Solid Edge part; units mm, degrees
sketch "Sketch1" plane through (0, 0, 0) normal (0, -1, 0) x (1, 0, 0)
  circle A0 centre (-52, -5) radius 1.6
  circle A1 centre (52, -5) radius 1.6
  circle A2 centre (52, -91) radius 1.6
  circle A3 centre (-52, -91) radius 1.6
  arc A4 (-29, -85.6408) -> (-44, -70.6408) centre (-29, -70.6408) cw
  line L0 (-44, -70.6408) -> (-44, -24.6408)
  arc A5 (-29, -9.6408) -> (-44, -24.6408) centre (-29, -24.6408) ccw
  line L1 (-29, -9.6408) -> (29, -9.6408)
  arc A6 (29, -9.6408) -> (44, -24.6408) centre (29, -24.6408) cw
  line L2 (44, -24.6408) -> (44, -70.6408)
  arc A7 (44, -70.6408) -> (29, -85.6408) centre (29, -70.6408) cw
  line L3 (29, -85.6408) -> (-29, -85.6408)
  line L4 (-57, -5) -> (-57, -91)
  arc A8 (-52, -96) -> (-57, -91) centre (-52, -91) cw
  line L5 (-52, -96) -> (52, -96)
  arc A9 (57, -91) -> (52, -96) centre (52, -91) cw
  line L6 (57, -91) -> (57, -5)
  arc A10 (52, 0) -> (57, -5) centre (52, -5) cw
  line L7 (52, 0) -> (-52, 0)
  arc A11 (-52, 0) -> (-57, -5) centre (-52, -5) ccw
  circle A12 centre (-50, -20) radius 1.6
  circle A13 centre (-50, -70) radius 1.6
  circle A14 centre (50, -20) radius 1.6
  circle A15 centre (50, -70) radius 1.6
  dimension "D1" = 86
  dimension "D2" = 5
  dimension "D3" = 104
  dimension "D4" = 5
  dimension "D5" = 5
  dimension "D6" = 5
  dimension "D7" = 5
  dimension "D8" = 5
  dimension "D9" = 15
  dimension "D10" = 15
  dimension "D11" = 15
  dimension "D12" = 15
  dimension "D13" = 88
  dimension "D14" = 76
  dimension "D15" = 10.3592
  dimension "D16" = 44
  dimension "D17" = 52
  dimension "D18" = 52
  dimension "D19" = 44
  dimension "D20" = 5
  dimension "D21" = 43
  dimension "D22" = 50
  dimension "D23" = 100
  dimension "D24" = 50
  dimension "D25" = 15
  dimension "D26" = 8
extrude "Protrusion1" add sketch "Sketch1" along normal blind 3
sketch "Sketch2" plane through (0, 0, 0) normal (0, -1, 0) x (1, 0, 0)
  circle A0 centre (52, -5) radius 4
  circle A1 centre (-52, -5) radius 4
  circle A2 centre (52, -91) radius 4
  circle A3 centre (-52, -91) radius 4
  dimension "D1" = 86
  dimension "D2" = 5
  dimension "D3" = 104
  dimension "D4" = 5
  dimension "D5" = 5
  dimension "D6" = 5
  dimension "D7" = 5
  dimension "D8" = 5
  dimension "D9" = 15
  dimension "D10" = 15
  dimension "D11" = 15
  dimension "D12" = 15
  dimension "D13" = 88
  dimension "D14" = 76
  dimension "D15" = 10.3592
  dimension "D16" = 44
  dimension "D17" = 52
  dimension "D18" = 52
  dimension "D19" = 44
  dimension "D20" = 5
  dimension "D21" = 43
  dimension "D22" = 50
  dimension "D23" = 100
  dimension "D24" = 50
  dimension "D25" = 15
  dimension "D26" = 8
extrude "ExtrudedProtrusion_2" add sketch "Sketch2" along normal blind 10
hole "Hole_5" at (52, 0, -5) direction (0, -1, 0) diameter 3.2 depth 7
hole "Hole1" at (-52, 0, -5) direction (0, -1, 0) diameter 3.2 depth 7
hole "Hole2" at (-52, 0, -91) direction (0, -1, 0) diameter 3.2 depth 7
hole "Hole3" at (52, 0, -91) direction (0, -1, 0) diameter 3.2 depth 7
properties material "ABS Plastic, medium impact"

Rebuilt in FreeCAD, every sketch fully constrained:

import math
import FreeCAD as App
import Part
import Sketcher

doc = App.newDocument("Part")
params = doc.addObject("Spreadsheet::Sheet", "Params")
for row, (alias, value) in enumerate([
    ("sketch1_radius", "5 mm"),
    ("sketch1_radius2", "15 mm"),
    ("sketch1_diameter", "3.2 mm"),
    ("sketch1_width", "104 mm"),
    ("sketch1_width2", "58 mm"),
    ("pad1_length", "3 mm"),
    ("sketch2_diameter", "8 mm"),
    ("pad2_length", "10 mm"),
    ("sketch3_diameter", "3.2 mm"),
    ("hole_diameter", "3.2 mm"),
    ("hole_depth", "7 mm"),
    ("sketch4_diameter", "3.2 mm"),
    ("hole2_diameter", "3.2 mm"),
    ("hole2_depth", "7 mm"),
    ("sketch5_diameter", "3.2 mm"),
    ("hole3_diameter", "3.2 mm"),
    ("hole3_depth", "7 mm"),
    ("sketch6_diameter", "3.2 mm"),
    ("hole4_diameter", "3.2 mm"),
    ("hole4_depth", "7 mm"),
], start=1):
    params.set(f"A{row}", alias)
    params.set(f"B{row}", "=" + value)
    params.setAlias(f"B{row}", alias)

body = doc.addObject("PartDesign::Body", "Body")

# Sketch on XZ plane
sketch1 = doc.addObject("Sketcher::SketchObject", "Sketch")
body.addObject(sketch1)
sketch1.AttachmentSupport = (doc.XZ_Plane, [""])
sketch1.MapMode = "FlatFace"
sketch1.addGeometry([
    Part.ArcOfCircle(Part.Circle(App.Vector(-52, -5, 0), App.Vector(0, 0, 1), 5), math.radians(90), math.radians(180)),  # 0
    Part.LineSegment(App.Vector(-57, -5, 0), App.Vector(-57, -91, 0)),  # 1
    Part.ArcOfCircle(Part.Circle(App.Vector(-52, -91, 0), App.Vector(0, 0, 1), 5), math.radians(180), math.radians(270)),  # 2
    Part.LineSegment(App.Vector(-52, -96, 0), App.Vector(52, -96, 0)),  # 3
    Part.ArcOfCircle(Part.Circle(App.Vector(52, -91, 0), App.Vector(0, 0, 1), 5), math.radians(-90), math.radians(0)),  # 4
    Part.LineSegment(App.Vector(57, -91, 0), App.Vector(57, -5, 0)),  # 5
    Part.ArcOfCircle(Part.Circle(App.Vector(52, -5, 0), App.Vector(0, 0, 1), 5), math.radians(0), math.radians(90)),  # 6
    Part.LineSegment(App.Vector(52, 0, 0), App.Vector(-52, 0, 0)),  # 7
    Part.Circle(App.Vector(-52, -91, 0), App.Vector(0, 0, 1), 1.6),  # 8
    Part.Circle(App.Vector(-50, -70, 0), App.Vector(0, 0, 1), 1.6),  # 9
    Part.Circle(App.Vector(52, -91, 0), App.Vector(0, 0, 1), 1.6),  # 10
    Part.Circle(App.Vector(50, -70, 0), App.Vector(0, 0, 1), 1.6),  # 11
    Part.Circle(App.Vector(-50, -20, 0), App.Vector(0, 0, 1), 1.6),  # 12
    Part.Circle(App.Vector(-52, -5, 0), App.Vector(0, 0, 1), 1.6),  # 13
    Part.LineSegment(App.Vector(29, -85.6, 0), App.Vector(-29, -85.6, 0)),  # 14
    Part.ArcOfCircle(Part.Circle(App.Vector(-29, -70.6, 0), App.Vector(0, 0, 1), 15), math.radians(180), math.radians(270)),  # 15
    Part.LineSegment(App.Vector(-44, -70.6, 0), App.Vector(-44, -24.6, 0)),  # 16
    Part.ArcOfCircle(Part.Circle(App.Vector(-29, -24.6, 0), App.Vector(0, 0, 1), 15), math.radians(90), math.radians(180)),  # 17
    Part.LineSegment(App.Vector(-29, -9.6, 0), App.Vector(29, -9.6, 0)),  # 18
    Part.ArcOfCircle(Part.Circle(App.Vector(29, -24.6, 0), App.Vector(0, 0, 1), 15), math.radians(0), math.radians(90)),  # 19
    Part.LineSegment(App.Vector(44, -24.6, 0), App.Vector(44, -70.6, 0)),  # 20
    Part.ArcOfCircle(Part.Circle(App.Vector(29, -70.6, 0), App.Vector(0, 0, 1), 15), math.radians(-90), math.radians(0)),  # 21
    Part.Circle(App.Vector(50, -20, 0), App.Vector(0, 0, 1), 1.6),  # 22
    Part.Circle(App.Vector(52, -5, 0), App.Vector(0, 0, 1), 1.6),  # 23
], False)
sketch1.addConstraint([
    Sketcher.Constraint("Tangent", 0, 2, 1, 1),
    Sketcher.Constraint("Tangent", 1, 2, 2, 1),
    Sketcher.Constraint("Tangent", 2, 2, 3, 1),
    Sketcher.Constraint("Tangent", 3, 2, 4, 1),
    Sketcher.Constraint("Tangent", 4, 2, 5, 1),
    Sketcher.Constraint("Tangent", 5, 2, 6, 1),
    Sketcher.Constraint("Tangent", 6, 2, 7, 1),
    Sketcher.Constraint("Tangent", 7, 2, 0, 1),
    Sketcher.Constraint("Tangent", 14, 2, 15, 2),
    Sketcher.Constraint("Tangent", 15, 1, 16, 1),
    Sketcher.Constraint("Tangent", 16, 2, 17, 2),
    Sketcher.Constraint("Tangent", 17, 1, 18, 1),
    Sketcher.Constraint("Tangent", 18, 2, 19, 2),
    Sketcher.Constraint("Tangent", 19, 1, 20, 1),
    Sketcher.Constraint("Tangent", 20, 2, 21, 2),
    Sketcher.Constraint("Tangent", 21, 1, 14, 1),
    Sketcher.Constraint("Vertical", 1),
    Sketcher.Constraint("Horizontal", 3),
    Sketcher.Constraint("Vertical", 5),
    Sketcher.Constraint("Horizontal", 7),
    Sketcher.Constraint("Horizontal", 14),
    Sketcher.Constraint("Vertical", 16),
    Sketcher.Constraint("Horizontal", 18),
    Sketcher.Constraint("Vertical", 20),
    Sketcher.Constraint("Coincident", 8, 3, 2, 3),
    Sketcher.Constraint("Coincident", 10, 3, 4, 3),
    Sketcher.Constraint("Coincident", 13, 3, 0, 3),
    Sketcher.Constraint("Coincident", 23, 3, 6, 3),
    Sketcher.Constraint("Equal", 0, 2),
    Sketcher.Constraint("Equal", 2, 4),
    Sketcher.Constraint("Equal", 4, 6),
    Sketcher.Constraint("Equal", 8, 9),
    Sketcher.Constraint("Equal", 9, 10),
    Sketcher.Constraint("Equal", 10, 11),
    Sketcher.Constraint("Equal", 11, 12),
    Sketcher.Constraint("Equal", 12, 13),
    Sketcher.Constraint("Equal", 15, 17),
    Sketcher.Constraint("Equal", 17, 19),
    Sketcher.Constraint("Equal", 19, 21),
    Sketcher.Constraint("Equal", 13, 22),
    Sketcher.Constraint("Equal", 22, 23),
    Sketcher.Constraint("Symmetric", 6, 2, 7, 2, -1, 1),
    Sketcher.Constraint("Symmetric", 9, 3, 11, 3, -2),
    Sketcher.Constraint("Symmetric", 12, 3, 22, 3, -2),
    Sketcher.Constraint("Vertical", 9, 3, 12, 3),
    Sketcher.Constraint("Radius", 0, 5.0),
    Sketcher.Constraint("Radius", 15, 15.0),
    Sketcher.Constraint("Diameter", 8, 3.2),
    Sketcher.Constraint("DistanceX", 3, 1, 3, 2, 104.0),
    Sketcher.Constraint("DistanceX", 14, 2, 14, 1, 58.0),
    Sketcher.Constraint("DistanceY", 1, 2, 1, 1, 86.0),
    Sketcher.Constraint("DistanceY", 16, 1, 16, 2, 46.0),
    Sketcher.Constraint("DistanceX", 9, 3, -1, 1, 50.0),
    Sketcher.Constraint("DistanceY", 9, 3, -1, 1, 70.0),
    Sketcher.Constraint("DistanceY", 12, 3, -1, 1, 20.0),
    Sketcher.Constraint("DistanceX", 15, 3, -1, 1, 29.0),
    Sketcher.Constraint("DistanceY", 15, 3, -1, 1, 70.6408),
])
sketch1.setExpression("Constraints[45]", "Params.sketch1_radius")
sketch1.setExpression("Constraints[46]", "Params.sketch1_radius2")
sketch1.setExpression("Constraints[47]", "Params.sketch1_diameter")
sketch1.setExpression("Constraints[48]", "Params.sketch1_width")
sketch1.setExpression("Constraints[49]", "Params.sketch1_width2")
pad1 = doc.addObject("PartDesign::Pad", "Pad")
body.addObject(pad1)
pad1.Profile = sketch1
pad1.setExpression("Length", "Params.pad1_length")

# Sketch on XZ plane
sketch2 = doc.addObject("Sketcher::SketchObject", "Sketch001")
body.addObject(sketch2)
sketch2.AttachmentSupport = (doc.XZ_Plane, [""])
sketch2.MapMode = "FlatFace"
sketch2.addGeometry([
    Part.Circle(App.Vector(52, -5, 0), App.Vector(0, 0, 1), 4),
    Part.Circle(App.Vector(-52, -5, 0), App.Vector(0, 0, 1), 4),
    Part.Circle(App.Vector(52, -91, 0), App.Vector(0, 0, 1), 4),
    Part.Circle(App.Vector(-52, -91, 0), App.Vector(0, 0, 1), 4),
], False)
sketch2.addConstraint([
    Sketcher.Constraint("Equal", 0, 1),
    Sketcher.Constraint("Equal", 1, 2),
    Sketcher.Constraint("Equal", 2, 3),
    Sketcher.Constraint("Symmetric", 0, 3, 1, 3, -2),
    Sketcher.Constraint("Symmetric", 2, 3, 3, 3, -2),
    Sketcher.Constraint("Vertical", 0, 3, 2, 3),
    Sketcher.Constraint("Diameter", 0, 8.0),
    Sketcher.Constraint("DistanceX", -1, 1, 0, 3, 52.0),
    Sketcher.Constraint("DistanceY", 0, 3, -1, 1, 5.0),
    Sketcher.Constraint("DistanceY", 2, 3, -1, 1, 91.0),
])
sketch2.setExpression("Constraints[6]", "Params.sketch2_diameter")
pad2 = doc.addObject("PartDesign::Pad", "Pad001")
body.addObject(pad2)
pad2.Profile = sketch2
pad2.setExpression("Length", "Params.pad2_length")

# Sketch on XZ plane
sketch3 = doc.addObject("Sketcher::SketchObject", "Sketch002")
body.addObject(sketch3)
sketch3.AttachmentSupport = (doc.XZ_Plane, [""])
sketch3.MapMode = "FlatFace"
sketch3.addGeometry(Part.Circle(App.Vector(52, -5, 0), App.Vector(0, 0, 1), 1.6), False)
sketch3.addConstraint([
    Sketcher.Constraint("Diameter", 0, 3.2),
    Sketcher.Constraint("DistanceX", -1, 1, 0, 3, 52.0),
    Sketcher.Constraint("DistanceY", 0, 3, -1, 1, 5.0),
])
sketch3.setExpression("Constraints[0]", "Params.sketch3_diameter")
doc.recompute()
hole = doc.addObject("PartDesign::Hole", "Hole")
body.addObject(hole)
hole.Profile = sketch3
hole.ThreadType = "None"
hole.setExpression("Diameter", "Params.hole_diameter")
hole.DepthType = "Dimension"
hole.setExpression("Depth", "Params.hole_depth")
hole.DrillPoint = "Flat"
hole.Reversed = True

# Sketch on XZ plane
sketch4 = doc.addObject("Sketcher::SketchObject", "Sketch003")
body.addObject(sketch4)
sketch4.AttachmentSupport = (doc.XZ_Plane, [""])
sketch4.MapMode = "FlatFace"
sketch4.addGeometry(Part.Circle(App.Vector(-52, -5, 0), App.Vector(0, 0, 1), 1.6), False)
sketch4.addConstraint([
    Sketcher.Constraint("Diameter", 0, 3.2),
    Sketcher.Constraint("DistanceX", 0, 3, -1, 1, 52.0),
    Sketcher.Constraint("DistanceY", 0, 3, -1, 1, 5.0),
])
sketch4.setExpression("Constraints[0]", "Params.sketch4_diameter")
doc.recompute()
hole2 = doc.addObject("PartDesign::Hole", "Hole001")
body.addObject(hole2)
hole2.Profile = sketch4
hole2.ThreadType = "None"
hole2.setExpression("Diameter", "Params.hole2_diameter")
hole2.DepthType = "Dimension"
hole2.setExpression("Depth", "Params.hole2_depth")
hole2.DrillPoint = "Flat"
hole2.Reversed = True

# Sketch on XZ plane
sketch5 = doc.addObject("Sketcher::SketchObject", "Sketch004")
body.addObject(sketch5)
sketch5.AttachmentSupport = (doc.XZ_Plane, [""])
sketch5.MapMode = "FlatFace"
sketch5.addGeometry(Part.Circle(App.Vector(-52, -91, 0), App.Vector(0, 0, 1), 1.6), False)
sketch5.addConstraint([
    Sketcher.Constraint("Diameter", 0, 3.2),
    Sketcher.Constraint("DistanceX", 0, 3, -1, 1, 52.0),
    Sketcher.Constraint("DistanceY", 0, 3, -1, 1, 91.0),
])
sketch5.setExpression("Constraints[0]", "Params.sketch5_diameter")
doc.recompute()
hole3 = doc.addObject("PartDesign::Hole", "Hole002")
body.addObject(hole3)
hole3.Profile = sketch5
hole3.ThreadType = "None"
hole3.setExpression("Diameter", "Params.hole3_diameter")
hole3.DepthType = "Dimension"
hole3.setExpression("Depth", "Params.hole3_depth")
hole3.DrillPoint = "Flat"
hole3.Reversed = True

# Sketch on XZ plane
sketch6 = doc.addObject("Sketcher::SketchObject", "Sketch005")
body.addObject(sketch6)
sketch6.AttachmentSupport = (doc.XZ_Plane, [""])
sketch6.MapMode = "FlatFace"
sketch6.addGeometry(Part.Circle(App.Vector(52, -91, 0), App.Vector(0, 0, 1), 1.6), False)
sketch6.addConstraint([
    Sketcher.Constraint("Diameter", 0, 3.2),
    Sketcher.Constraint("DistanceX", -1, 1, 0, 3, 52.0),
    Sketcher.Constraint("DistanceY", 0, 3, -1, 1, 91.0),
])
sketch6.setExpression("Constraints[0]", "Params.sketch6_diameter")
doc.recompute()
hole4 = doc.addObject("PartDesign::Hole", "Hole003")
body.addObject(hole4)
hole4.Profile = sketch6
hole4.ThreadType = "None"
hole4.setExpression("Diameter", "Params.hole4_diameter")
hole4.DepthType = "Dimension"
hole4.setExpression("Depth", "Params.hole4_depth")
hole4.DrillPoint = "Flat"
hole4.Reversed = True

doc.recompute()
